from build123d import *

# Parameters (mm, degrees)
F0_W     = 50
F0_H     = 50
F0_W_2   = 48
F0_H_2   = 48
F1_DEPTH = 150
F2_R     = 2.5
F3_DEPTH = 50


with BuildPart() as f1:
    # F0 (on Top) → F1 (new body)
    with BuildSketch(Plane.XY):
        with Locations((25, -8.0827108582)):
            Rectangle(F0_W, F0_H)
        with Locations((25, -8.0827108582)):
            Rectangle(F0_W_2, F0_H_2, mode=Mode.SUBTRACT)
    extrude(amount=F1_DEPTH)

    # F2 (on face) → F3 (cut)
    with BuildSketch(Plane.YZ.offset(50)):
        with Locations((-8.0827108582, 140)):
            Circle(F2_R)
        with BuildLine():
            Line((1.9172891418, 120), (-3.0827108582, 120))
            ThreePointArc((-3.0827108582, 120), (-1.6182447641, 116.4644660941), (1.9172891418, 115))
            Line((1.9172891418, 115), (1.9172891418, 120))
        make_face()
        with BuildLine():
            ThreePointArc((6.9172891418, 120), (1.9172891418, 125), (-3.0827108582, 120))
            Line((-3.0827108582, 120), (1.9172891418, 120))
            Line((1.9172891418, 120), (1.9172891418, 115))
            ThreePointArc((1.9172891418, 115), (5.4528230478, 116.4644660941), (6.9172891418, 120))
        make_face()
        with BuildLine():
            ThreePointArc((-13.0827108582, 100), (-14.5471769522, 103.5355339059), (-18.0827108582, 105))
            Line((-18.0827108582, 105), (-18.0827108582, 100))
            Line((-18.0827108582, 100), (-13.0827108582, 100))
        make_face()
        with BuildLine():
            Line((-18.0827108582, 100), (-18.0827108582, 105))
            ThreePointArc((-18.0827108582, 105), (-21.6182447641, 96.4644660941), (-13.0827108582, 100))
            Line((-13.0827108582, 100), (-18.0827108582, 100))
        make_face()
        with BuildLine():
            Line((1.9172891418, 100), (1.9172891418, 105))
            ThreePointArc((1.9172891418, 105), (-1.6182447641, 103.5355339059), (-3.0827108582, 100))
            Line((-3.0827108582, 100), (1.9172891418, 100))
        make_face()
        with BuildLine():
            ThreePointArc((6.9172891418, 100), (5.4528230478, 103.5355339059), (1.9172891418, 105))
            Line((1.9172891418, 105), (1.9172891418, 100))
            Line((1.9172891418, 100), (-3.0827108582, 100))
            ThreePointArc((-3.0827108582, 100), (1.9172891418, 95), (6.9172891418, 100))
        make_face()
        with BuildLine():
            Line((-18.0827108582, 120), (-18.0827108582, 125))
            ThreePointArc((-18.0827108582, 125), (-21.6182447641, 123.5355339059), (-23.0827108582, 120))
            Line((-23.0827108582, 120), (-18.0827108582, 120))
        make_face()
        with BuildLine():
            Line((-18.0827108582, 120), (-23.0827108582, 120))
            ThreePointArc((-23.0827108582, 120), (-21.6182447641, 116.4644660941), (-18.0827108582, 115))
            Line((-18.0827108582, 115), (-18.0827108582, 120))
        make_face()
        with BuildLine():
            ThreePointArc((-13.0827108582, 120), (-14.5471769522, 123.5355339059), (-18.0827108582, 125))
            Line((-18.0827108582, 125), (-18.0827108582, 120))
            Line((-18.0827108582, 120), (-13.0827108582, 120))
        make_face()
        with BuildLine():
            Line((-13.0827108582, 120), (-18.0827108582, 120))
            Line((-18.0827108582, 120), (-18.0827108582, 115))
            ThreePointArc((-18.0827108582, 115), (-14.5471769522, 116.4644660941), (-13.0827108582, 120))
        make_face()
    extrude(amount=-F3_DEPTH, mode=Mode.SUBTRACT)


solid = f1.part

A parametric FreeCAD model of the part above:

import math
import FreeCAD as App
import Part
import Sketcher

V = App.Vector
Q = App.Units.Quantity


def add_polygon(sketch, points):
    """Adds a closed chain of lines whose ends are joined by coincident constraints."""
    first, n = sketch.GeometryCount, len(points)
    for a, b in zip(points, points[1:] + points[:1]):
        sketch.addGeometry(Part.LineSegment(App.Vector(*a, 0), App.Vector(*b, 0)), False)
    for i in range(n):
        sketch.addConstraint(Sketcher.Constraint("Coincident", first + i, 2, first + (i + 1) % n, 1))

doc = App.newDocument("Part")
body = doc.addObject("PartDesign::Body", "Body")

# Sketch on XY plane
sketch1 = doc.addObject("Sketcher::SketchObject", "Sketch")
body.addObject(sketch1)
sketch1.AttachmentSupport = (doc.XY_Plane, [""])
sketch1.MapMode = "FlatFace"
add_polygon(sketch1, [(0, 17), (0, -33), (50, -33), (50, 17)])  # lines 0-3
add_polygon(sketch1, [(49, -32), (1, -32), (1, 16), (49, 16)])  # lines 4-7
sketch1.addConstraint(Sketcher.Constraint("Vertical", 0))
sketch1.addConstraint(Sketcher.Constraint("Horizontal", 1))
sketch1.addConstraint(Sketcher.Constraint("Vertical", 2))
sketch1.addConstraint(Sketcher.Constraint("Horizontal", 3))
sketch1.addConstraint(Sketcher.Constraint("Horizontal", 4))
sketch1.addConstraint(Sketcher.Constraint("Vertical", 5))
sketch1.addConstraint(Sketcher.Constraint("Horizontal", 6))
sketch1.addConstraint(Sketcher.Constraint("Vertical", 7))
sketch1.addConstraint(Sketcher.Constraint("PointOnObject", 0, 2, -2))
sketch1.addConstraint(Sketcher.Constraint("Equal", 3, 0))
sketch1.addConstraint(Sketcher.Constraint("Equal", 6, 5))
sketch1.addConstraint(Sketcher.Constraint("DistanceX", 1, 1, 1, 2, Q("50 mm")))
sketch1.addConstraint(Sketcher.Constraint("DistanceX", 4, 2, 4, 1, Q("48 mm")))
sketch1.addConstraint(Sketcher.Constraint("DistanceX", -1, 1, 4, 2, Q("1 mm")))
sketch1.addConstraint(Sketcher.Constraint("DistanceY", 0, 2, 4, 2, Q("1 mm")))
sketch1.addConstraint(Sketcher.Constraint("DistanceY", 0, 2, -1, 1, Q("33.082711 mm")))
pad1 = doc.addObject("PartDesign::Pad", "Pad")
body.addObject(pad1)
pad1.Profile = sketch1
pad1.Length = 150

# Sketch on YZ plane
sketch2 = doc.addObject("Sketcher::SketchObject", "Sketch001")
body.addObject(sketch2)
sketch2.AttachmentSupport = (doc.YZ_Plane, [""])
sketch2.MapMode = "FlatFace"
sketch2.AttachmentOffset = App.Placement(V(0, 0, 50), App.Rotation())
sketch2.addGeometry(Part.Circle(V(-8.1, 140, 0), V(0, 0, 1), 2.5), False)
sketch2.addGeometry(Part.ArcOfCircle(Part.Circle(V(1.9, 120, 0), V(0, 0, 1), 5), math.radians(180), math.radians(270)), False)
sketch2.addGeometry(Part.ArcOfCircle(Part.Circle(V(1.9, 120, 0), V(0, 0, 1), 5), math.radians(-90), math.radians(0)), False)
sketch2.addGeometry(Part.ArcOfCircle(Part.Circle(V(1.9, 120, 0), V(0, 0, 1), 5), math.radians(0), math.radians(180)), False)
sketch2.addGeometry(Part.ArcOfCircle(Part.Circle(V(-18.1, 100, 0), V(0, 0, 1), 5), math.radians(0), math.radians(90)), False)
sketch2.addGeometry(Part.ArcOfCircle(Part.Circle(V(-18.1, 100, 0), V(0, 0, 1), 5), math.radians(90), math.radians(360)), False)
sketch2.addGeometry(Part.ArcOfCircle(Part.Circle(V(1.9, 100, 0), V(0, 0, 1), 5), math.radians(90), math.radians(180)), False)
sketch2.addGeometry(Part.ArcOfCircle(Part.Circle(V(1.9, 100, 0), V(0, 0, 1), 5), math.radians(180), math.radians(360)), False)
sketch2.addGeometry(Part.ArcOfCircle(Part.Circle(V(1.9, 100, 0), V(0, 0, 1), 5), math.radians(0), math.radians(90)), False)
sketch2.addGeometry(Part.ArcOfCircle(Part.Circle(V(-18.1, 120, 0), V(0, 0, 1), 5), math.radians(90), math.radians(180)), False)
sketch2.addGeometry(Part.ArcOfCircle(Part.Circle(V(-18.1, 120, 0), V(0, 0, 1), 5), math.radians(180), math.radians(270)), False)
sketch2.addGeometry(Part.ArcOfCircle(Part.Circle(V(-18.1, 120, 0), V(0, 0, 1), 5), math.radians(-90), math.radians(0)), False)
sketch2.addGeometry(Part.ArcOfCircle(Part.Circle(V(-18.1, 120, 0), V(0, 0, 1), 5), math.radians(0), math.radians(90)), False)
sketch2.addConstraint(Sketcher.Constraint("Tangent", 1, 2, 2, 1))
sketch2.addConstraint(Sketcher.Constraint("Tangent", 2, 2, 3, 1))
sketch2.addConstraint(Sketcher.Constraint("Tangent", 3, 2, 1, 1))
sketch2.addConstraint(Sketcher.Constraint("Tangent", 4, 1, 5, 2))
sketch2.addConstraint(Sketcher.Constraint("Coincident", 5, 1, 4, 2))
sketch2.addConstraint(Sketcher.Constraint("Tangent", 6, 2, 7, 1))
sketch2.addConstraint(Sketcher.Constraint("Tangent", 7, 2, 8, 1))
sketch2.addConstraint(Sketcher.Constraint("Tangent", 8, 2, 6, 1))
sketch2.addConstraint(Sketcher.Constraint("Tangent", 9, 2, 10, 1))
sketch2.addConstraint(Sketcher.Constraint("Tangent", 10, 2, 11, 1))
sketch2.addConstraint(Sketcher.Constraint("Tangent", 11, 2, 12, 1))
sketch2.addConstraint(Sketcher.Constraint("Tangent", 12, 2, 9, 1))
sketch2.addConstraint(Sketcher.Constraint("Equal", 3, 4))
sketch2.addConstraint(Sketcher.Constraint("Equal", 5, 6))
sketch2.addConstraint(Sketcher.Constraint("Equal", 8, 9))
sketch2.addConstraint(Sketcher.Constraint("Equal", 9, 10))
sketch2.addConstraint(Sketcher.Constraint("Horizontal", 5, 3, 6, 3))
sketch2.addConstraint(Sketcher.Constraint("Horizontal", 3, 3, 9, 3))
sketch2.addConstraint(Sketcher.Constraint("Horizontal", 12, 3, 2, 2))
sketch2.addConstraint(Sketcher.Constraint("Horizontal", 2, 2, 3, 2))
sketch2.addConstraint(Sketcher.Constraint("Horizontal", 8, 3, 4, 1))
sketch2.addConstraint(Sketcher.Constraint("Horizontal", 4, 1, 6, 2))
sketch2.addConstraint(Sketcher.Constraint("Horizontal", 6, 2, 7, 2))
sketch2.addConstraint(Sketcher.Constraint("Horizontal", 3, 2, 9, 2))
sketch2.addConstraint(Sketcher.Constraint("Horizontal", 9, 2, 11, 2))
sketch2.addConstraint(Sketcher.Constraint("Vertical", 3, 3, 6, 3))
sketch2.addConstraint(Sketcher.Constraint("Vertical", 5, 3, 9, 3))
sketch2.addConstraint(Sketcher.Constraint("Vertical", 8, 3, 1, 2))
sketch2.addConstraint(Sketcher.Constraint("Vertical", 12, 3, 5, 1))
sketch2.addConstraint(Sketcher.Constraint("Vertical", 1, 2, 8, 2))
sketch2.addConstraint(Sketcher.Constraint("Vertical", 5, 1, 10, 2))
sketch2.addConstraint(Sketcher.Constraint("Vertical", 10, 2, 12, 2))
sketch2.addConstraint(Sketcher.Constraint("Diameter", 0, Q("5 mm")))
sketch2.addConstraint(Sketcher.Constraint("Radius", 1, Q("5 mm")))
sketch2.addConstraint(Sketcher.Constraint("DistanceY", -1, 1, 0, 3, Q("140 mm")))
sketch2.addConstraint(Sketcher.Constraint("DistanceY", -1, 1, 1, 3, Q("120 mm")))
sketch2.addConstraint(Sketcher.Constraint("DistanceY", -1, 1, 4, 3, Q("100 mm")))
sketch2.addConstraint(Sketcher.Constraint("DistanceX", 0, 3, 1, 3, Q("10 mm")))
sketch2.addConstraint(Sketcher.Constraint("DistanceX", 4, 3, 1, 3, Q("20 mm")))
sketch2.addConstraint(Sketcher.Constraint("DistanceX", 0, 3, -1, 1, Q("8.082711 mm")))
pocket1 = doc.addObject("PartDesign::Pocket", "Pocket")
body.addObject(pocket1)
pocket1.Profile = sketch2
pocket1.Length = 50

doc.recompute()
